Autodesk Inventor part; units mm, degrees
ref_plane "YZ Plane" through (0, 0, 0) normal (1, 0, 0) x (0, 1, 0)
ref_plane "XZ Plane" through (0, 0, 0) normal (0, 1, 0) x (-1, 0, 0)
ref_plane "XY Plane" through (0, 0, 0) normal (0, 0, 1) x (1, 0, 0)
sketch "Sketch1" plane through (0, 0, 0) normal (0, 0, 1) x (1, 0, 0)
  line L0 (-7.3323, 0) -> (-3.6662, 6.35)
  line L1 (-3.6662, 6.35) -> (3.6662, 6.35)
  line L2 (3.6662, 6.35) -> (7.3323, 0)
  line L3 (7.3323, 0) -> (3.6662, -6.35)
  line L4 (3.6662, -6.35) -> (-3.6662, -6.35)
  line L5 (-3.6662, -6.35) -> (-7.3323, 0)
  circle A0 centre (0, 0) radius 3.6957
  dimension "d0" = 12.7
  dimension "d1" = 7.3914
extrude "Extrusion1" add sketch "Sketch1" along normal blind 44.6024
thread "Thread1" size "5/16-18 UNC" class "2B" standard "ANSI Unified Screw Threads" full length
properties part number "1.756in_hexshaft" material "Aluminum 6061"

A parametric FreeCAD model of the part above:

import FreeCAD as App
import Part
import Sketcher
Q = App.Units.Quantity


def add_polygon(sketch, points):
    """Adds a closed chain of lines whose ends are joined by coincident constraints."""
    first, n = sketch.GeometryCount, len(points)
    for a, b in zip(points, points[1:] + points[:1]):
        sketch.addGeometry(Part.LineSegment(App.Vector(*a, 0), App.Vector(*b, 0)), False)
    for i in range(n):
        sketch.addConstraint(Sketcher.Constraint("Coincident", first + i, 2, first + (i + 1) % n, 1))

doc = App.newDocument("Part")
body = doc.addObject("PartDesign::Body", "Body")

# Sketch on XY plane
sketch1 = doc.addObject("Sketcher::SketchObject", "Sketch")
body.addObject(sketch1)
sketch1.AttachmentSupport = (doc.XY_Plane, [""])
sketch1.MapMode = "FlatFace"
add_polygon(sketch1, [(-3.6662, 6.35), (-7.3323, 0), (-3.6662, -6.35), (3.6662, -6.35), (7.3323, 0), (3.6662, 6.35)])  # lines 0-5
sketch1.addGeometry(Part.Circle(App.Vector(0, 0, 0), App.Vector(0, 0, 1), 3.6957), False)  # 6
sketch1.addConstraint([
    Sketcher.Constraint("Horizontal", 2),
    Sketcher.Constraint("Horizontal", 5),
    Sketcher.Constraint("Coincident", 6, 3, -1, 1),
    Sketcher.Constraint("Symmetric", 0, 2, 3, 2, -1, 1),
    Sketcher.Constraint("Symmetric", 1, 2, 4, 2, -1, 1),
    Sketcher.Constraint("PointOnObject", 0, 2, -1),
    Sketcher.Constraint("Parallel", 0, 3),
    Sketcher.Constraint("Vertical", 2, 2, 4, 2),
    Sketcher.Constraint("Diameter", 6, Q("0.291 in")),
    Sketcher.Constraint("DistanceY", 2, 2, 4, 2, Q("0.5 in")),
    Sketcher.Constraint("Angle", 0, Q("-119.9995 deg")),
    Sketcher.Constraint("DistanceX", 0, 2, 2, 2, Q("0.433 in")),
])
pad1 = doc.addObject("PartDesign::Pad", "Pad")
body.addObject(pad1)
pad1.Profile = sketch1
pad1.Length = Q("1.756 in")

doc.recompute()
